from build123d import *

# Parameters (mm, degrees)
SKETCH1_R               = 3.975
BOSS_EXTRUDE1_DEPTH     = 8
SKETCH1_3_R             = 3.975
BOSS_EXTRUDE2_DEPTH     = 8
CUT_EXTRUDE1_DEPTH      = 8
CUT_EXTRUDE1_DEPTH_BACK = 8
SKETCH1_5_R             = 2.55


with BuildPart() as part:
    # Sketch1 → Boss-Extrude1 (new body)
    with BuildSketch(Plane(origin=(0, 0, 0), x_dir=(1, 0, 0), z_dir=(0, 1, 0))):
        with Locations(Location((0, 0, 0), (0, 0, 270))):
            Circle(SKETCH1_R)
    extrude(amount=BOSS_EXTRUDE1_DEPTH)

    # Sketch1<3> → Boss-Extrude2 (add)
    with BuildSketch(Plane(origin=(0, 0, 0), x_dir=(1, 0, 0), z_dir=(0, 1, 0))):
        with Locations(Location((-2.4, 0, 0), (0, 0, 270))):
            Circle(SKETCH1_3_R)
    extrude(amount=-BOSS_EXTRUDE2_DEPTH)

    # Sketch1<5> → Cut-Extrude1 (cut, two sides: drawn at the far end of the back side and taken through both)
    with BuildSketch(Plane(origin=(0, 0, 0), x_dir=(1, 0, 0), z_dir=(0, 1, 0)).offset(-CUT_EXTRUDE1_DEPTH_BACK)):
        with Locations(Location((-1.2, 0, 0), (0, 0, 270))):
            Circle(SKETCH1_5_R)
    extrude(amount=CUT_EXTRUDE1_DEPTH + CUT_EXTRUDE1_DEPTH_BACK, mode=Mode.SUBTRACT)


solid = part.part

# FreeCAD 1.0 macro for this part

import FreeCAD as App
import Part
import Sketcher
from FreeCAD import Vector

doc = App.newDocument("Part")
body = doc.addObject("PartDesign::Body", "Body")

sketch1 = body.newObject("Sketcher::SketchObject", "Sketch")
sketch1.AttachmentSupport = (doc.getObject("XZ_Plane"), [""])
sketch1.MapMode = "FlatFace"
sketch1.addGeometry(Part.Circle(Vector(0, 0, 0), Vector(0, 0, 1), 3.975), False)
sketch1.addConstraint([
    Sketcher.Constraint("Coincident", 0, 3, -1, 1),
    Sketcher.Constraint("Diameter", 0, 7.95),
])
pad1 = body.newObject("PartDesign::Pad", "Pad")
pad1.Profile = sketch1
pad1.Length = 8
pad1.Reversed = True

sketch2 = body.newObject("Sketcher::SketchObject", "Sketch001")
sketch2.AttachmentSupport = (doc.getObject("XZ_Plane"), [""])
sketch2.MapMode = "FlatFace"
sketch2.addGeometry(Part.Circle(Vector(-2.4, 0, 0), Vector(0, 0, 1), 3.975), False)
sketch2.addConstraint([
    Sketcher.Constraint("PointOnObject", 0, 3, -1),
    Sketcher.Constraint("Diameter", 0, 7.95),
    Sketcher.Constraint("DistanceX", 0, 3, -1, 1, 2.4),
])
pad2 = body.newObject("PartDesign::Pad", "Pad001")
pad2.Profile = sketch2
pad2.Length = 8

sketch3 = body.newObject("Sketcher::SketchObject", "Sketch002")
sketch3.AttachmentSupport = (doc.getObject("XZ_Plane"), [""])
sketch3.MapMode = "FlatFace"
sketch3.addGeometry(Part.Circle(Vector(-1.2, 0, 0), Vector(0, 0, 1), 2.55), False)
sketch3.addConstraint([
    Sketcher.Constraint("PointOnObject", 0, 3, -1),
    Sketcher.Constraint("Diameter", 0, 5.1),
    Sketcher.Constraint("DistanceX", 0, 3, -1, 1, 1.2),
])
pocket1 = body.newObject("PartDesign::Pocket", "Pocket")
pocket1.Profile = sketch3
pocket1.Type = "ThroughAll"
pocket1.Midplane = True

doc.recompute()
